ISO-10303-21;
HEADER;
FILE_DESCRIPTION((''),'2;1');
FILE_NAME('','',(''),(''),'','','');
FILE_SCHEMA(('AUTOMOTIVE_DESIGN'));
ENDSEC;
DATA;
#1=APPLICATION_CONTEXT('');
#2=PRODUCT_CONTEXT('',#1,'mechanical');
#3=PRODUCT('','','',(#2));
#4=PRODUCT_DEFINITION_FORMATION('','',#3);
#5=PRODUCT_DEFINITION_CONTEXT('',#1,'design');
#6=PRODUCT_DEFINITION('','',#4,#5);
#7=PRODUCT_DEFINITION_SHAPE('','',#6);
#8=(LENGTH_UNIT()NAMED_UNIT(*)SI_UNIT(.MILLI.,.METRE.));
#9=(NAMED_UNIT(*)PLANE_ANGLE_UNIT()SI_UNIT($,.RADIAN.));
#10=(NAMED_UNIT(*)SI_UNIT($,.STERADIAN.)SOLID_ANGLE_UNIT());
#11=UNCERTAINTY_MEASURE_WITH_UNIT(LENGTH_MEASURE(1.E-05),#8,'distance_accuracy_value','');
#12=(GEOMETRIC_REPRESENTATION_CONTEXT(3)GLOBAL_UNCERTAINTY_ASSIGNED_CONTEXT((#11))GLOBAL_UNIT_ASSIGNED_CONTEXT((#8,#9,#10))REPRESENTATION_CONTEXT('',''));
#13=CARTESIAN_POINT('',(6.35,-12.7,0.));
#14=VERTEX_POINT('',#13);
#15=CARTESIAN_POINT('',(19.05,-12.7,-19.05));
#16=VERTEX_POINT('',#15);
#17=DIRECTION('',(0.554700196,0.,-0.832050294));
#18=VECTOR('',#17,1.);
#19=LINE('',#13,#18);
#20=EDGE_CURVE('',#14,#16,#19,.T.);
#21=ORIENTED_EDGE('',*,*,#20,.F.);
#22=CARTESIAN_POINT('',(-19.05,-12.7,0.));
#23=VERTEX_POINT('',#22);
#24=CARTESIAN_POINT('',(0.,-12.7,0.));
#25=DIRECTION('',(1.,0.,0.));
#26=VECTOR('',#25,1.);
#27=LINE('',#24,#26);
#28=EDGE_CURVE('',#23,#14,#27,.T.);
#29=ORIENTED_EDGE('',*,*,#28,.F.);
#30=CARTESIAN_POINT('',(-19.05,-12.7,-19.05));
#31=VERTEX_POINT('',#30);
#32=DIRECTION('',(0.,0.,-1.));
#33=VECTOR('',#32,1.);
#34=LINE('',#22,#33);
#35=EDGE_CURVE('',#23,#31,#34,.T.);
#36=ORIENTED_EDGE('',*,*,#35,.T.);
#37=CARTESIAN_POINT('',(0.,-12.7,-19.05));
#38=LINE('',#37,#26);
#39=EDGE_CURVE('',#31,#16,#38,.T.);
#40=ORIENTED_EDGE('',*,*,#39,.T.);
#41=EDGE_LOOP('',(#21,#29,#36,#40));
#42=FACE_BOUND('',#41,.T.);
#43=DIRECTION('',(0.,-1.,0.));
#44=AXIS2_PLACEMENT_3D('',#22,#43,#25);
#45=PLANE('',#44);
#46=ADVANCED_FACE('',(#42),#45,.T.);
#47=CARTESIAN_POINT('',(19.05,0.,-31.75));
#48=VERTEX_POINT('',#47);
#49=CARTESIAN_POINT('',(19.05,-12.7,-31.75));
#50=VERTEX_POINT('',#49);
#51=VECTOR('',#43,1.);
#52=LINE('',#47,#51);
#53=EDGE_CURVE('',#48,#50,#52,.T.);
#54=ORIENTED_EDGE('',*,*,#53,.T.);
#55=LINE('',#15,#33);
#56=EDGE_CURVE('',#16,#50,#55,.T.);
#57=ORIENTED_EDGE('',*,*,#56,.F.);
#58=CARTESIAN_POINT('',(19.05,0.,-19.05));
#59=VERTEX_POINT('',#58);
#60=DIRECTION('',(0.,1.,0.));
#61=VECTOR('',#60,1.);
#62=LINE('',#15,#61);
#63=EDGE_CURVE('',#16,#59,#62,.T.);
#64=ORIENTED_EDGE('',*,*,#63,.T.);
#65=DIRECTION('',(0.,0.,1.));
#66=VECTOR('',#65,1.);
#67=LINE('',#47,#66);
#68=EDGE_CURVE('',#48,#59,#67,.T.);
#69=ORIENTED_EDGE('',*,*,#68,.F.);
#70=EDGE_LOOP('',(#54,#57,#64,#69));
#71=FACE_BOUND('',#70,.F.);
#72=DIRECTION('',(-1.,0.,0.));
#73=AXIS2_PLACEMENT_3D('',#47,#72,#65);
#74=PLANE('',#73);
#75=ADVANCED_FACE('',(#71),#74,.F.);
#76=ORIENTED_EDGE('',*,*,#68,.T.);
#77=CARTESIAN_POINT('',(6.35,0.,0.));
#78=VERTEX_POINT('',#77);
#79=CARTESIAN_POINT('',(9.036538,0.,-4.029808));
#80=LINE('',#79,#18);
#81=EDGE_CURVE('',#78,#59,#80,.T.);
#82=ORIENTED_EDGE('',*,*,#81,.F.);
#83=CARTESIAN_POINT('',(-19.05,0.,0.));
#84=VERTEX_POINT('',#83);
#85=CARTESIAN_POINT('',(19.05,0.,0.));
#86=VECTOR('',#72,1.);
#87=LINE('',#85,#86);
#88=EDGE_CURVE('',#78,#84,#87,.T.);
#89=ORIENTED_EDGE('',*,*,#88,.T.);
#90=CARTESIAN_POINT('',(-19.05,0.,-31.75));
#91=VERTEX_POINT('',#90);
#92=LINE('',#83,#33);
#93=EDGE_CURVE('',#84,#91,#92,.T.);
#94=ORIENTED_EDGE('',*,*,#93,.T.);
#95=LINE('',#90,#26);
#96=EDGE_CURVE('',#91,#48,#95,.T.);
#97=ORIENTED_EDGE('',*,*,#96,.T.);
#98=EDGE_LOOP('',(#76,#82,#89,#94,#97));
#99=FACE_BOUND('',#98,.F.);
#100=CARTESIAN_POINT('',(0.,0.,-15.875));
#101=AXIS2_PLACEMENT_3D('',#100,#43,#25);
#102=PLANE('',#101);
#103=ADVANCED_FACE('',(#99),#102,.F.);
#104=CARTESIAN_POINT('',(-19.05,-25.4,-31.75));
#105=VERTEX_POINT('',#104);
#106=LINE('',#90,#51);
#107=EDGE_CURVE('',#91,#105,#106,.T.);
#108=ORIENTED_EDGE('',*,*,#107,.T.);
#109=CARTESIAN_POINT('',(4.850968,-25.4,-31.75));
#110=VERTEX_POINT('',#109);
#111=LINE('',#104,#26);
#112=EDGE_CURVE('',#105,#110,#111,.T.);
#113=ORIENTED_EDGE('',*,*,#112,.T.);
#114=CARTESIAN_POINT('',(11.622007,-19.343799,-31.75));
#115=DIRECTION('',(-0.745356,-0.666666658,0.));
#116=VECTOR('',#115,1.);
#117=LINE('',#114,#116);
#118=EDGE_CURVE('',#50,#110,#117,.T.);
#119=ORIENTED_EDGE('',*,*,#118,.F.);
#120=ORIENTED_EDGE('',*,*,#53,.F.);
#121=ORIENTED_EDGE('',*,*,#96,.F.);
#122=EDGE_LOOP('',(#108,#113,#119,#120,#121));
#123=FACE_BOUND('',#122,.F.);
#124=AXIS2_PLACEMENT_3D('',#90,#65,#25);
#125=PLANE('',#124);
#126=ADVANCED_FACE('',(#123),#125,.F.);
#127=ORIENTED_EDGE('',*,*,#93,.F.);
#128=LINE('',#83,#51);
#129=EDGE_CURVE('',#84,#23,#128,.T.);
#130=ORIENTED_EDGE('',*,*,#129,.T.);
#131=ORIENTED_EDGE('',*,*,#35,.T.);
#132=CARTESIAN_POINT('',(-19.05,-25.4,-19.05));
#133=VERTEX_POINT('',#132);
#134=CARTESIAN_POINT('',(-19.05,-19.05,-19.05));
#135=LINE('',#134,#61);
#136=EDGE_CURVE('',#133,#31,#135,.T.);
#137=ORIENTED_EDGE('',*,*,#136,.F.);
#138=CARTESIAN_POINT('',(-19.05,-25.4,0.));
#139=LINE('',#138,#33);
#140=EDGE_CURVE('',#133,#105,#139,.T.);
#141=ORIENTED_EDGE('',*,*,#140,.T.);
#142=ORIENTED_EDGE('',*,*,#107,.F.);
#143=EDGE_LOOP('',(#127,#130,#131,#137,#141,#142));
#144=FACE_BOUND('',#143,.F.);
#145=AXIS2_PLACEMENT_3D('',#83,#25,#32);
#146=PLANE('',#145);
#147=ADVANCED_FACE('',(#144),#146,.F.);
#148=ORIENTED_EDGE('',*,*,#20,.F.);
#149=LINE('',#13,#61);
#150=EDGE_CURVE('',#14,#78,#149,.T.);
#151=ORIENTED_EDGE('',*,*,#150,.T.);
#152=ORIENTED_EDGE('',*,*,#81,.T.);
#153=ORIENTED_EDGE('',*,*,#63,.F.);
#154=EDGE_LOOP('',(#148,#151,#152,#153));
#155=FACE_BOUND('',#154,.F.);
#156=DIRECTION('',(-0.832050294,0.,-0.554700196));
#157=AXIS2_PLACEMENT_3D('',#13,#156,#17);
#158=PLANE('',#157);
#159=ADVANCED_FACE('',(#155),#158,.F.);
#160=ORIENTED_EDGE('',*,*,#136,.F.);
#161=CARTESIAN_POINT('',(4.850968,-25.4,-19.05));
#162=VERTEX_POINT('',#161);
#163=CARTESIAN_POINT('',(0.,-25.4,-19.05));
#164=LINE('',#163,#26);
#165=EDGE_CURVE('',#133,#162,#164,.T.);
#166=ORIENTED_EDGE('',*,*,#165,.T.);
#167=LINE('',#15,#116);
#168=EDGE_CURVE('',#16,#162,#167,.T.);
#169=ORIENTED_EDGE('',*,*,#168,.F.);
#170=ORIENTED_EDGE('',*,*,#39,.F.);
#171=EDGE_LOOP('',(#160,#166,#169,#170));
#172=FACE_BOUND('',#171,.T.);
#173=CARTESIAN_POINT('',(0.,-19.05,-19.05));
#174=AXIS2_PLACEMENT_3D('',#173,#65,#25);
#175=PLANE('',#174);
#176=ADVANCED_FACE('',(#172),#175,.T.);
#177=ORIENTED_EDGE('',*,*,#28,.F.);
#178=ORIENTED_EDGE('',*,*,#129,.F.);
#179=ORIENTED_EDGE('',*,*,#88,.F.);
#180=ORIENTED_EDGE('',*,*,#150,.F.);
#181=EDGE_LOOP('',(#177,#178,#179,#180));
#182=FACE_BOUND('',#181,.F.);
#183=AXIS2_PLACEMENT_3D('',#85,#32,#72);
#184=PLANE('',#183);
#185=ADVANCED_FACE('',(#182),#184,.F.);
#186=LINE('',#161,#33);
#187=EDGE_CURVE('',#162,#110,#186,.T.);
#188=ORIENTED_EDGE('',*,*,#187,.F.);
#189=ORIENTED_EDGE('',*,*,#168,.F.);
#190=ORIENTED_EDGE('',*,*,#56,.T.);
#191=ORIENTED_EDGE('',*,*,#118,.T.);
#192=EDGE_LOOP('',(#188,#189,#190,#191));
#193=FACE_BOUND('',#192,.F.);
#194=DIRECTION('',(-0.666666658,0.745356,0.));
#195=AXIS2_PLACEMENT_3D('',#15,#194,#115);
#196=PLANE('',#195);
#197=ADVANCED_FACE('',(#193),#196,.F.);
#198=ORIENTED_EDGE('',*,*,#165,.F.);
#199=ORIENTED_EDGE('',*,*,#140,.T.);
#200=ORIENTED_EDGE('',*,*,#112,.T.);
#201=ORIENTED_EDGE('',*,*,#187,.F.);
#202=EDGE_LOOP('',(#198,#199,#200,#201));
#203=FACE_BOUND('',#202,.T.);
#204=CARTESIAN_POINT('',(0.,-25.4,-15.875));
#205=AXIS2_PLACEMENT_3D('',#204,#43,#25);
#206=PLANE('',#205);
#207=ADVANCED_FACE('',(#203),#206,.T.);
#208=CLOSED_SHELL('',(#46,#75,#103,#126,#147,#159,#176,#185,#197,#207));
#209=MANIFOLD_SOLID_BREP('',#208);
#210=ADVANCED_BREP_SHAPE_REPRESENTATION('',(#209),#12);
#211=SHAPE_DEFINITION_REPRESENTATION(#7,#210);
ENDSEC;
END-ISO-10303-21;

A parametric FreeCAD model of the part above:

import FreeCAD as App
import Part
import Sketcher
from FreeCAD import Vector
Q = App.Units.Quantity

doc = App.newDocument("Part")
body = doc.addObject("PartDesign::Body", "Body")

# Sketch on XZ plane
sketch1 = doc.addObject("Sketcher::SketchObject", "Sketch")
body.addObject(sketch1)
sketch1.AttachmentSupport = (doc.XZ_Plane, [""])
sketch1.MapMode = "FlatFace"
sketch1.addGeometry(Part.LineSegment(Vector(19, 0, 0), Vector(-19, 0, 0)), False)
sketch1.addGeometry(Part.LineSegment(Vector(-19, 0, 0), Vector(-19, -32, 0)), False)
sketch1.addGeometry(Part.LineSegment(Vector(-19, -32, 0), Vector(19, -32, 0)), False)
sketch1.addGeometry(Part.LineSegment(Vector(19, -32, 0), Vector(19, 0, 0)), False)
sketch1.addConstraint(Sketcher.Constraint("Coincident", 0, 2, 1, 1))
sketch1.addConstraint(Sketcher.Constraint("Coincident", 1, 2, 2, 1))
sketch1.addConstraint(Sketcher.Constraint("Coincident", 2, 2, 3, 1))
sketch1.addConstraint(Sketcher.Constraint("Coincident", 3, 2, 0, 1))
sketch1.addConstraint(Sketcher.Constraint("Horizontal", 0))
sketch1.addConstraint(Sketcher.Constraint("Vertical", 1))
sketch1.addConstraint(Sketcher.Constraint("Horizontal", 2))
sketch1.addConstraint(Sketcher.Constraint("Vertical", 3))
sketch1.addConstraint(Sketcher.Constraint("Symmetric", 0, 2, 3, 2, -1, 1))
sketch1.addConstraint(Sketcher.Constraint("DistanceX", 0, 2, 0, 1, Q("1.5 in")))
sketch1.addConstraint(Sketcher.Constraint("DistanceY", 1, 2, 1, 1, Q("1.25 in")))
pad1 = doc.addObject("PartDesign::Pad", "Pad")
body.addObject(pad1)
pad1.Profile = sketch1
pad1.Length = Q("1 in")

# Sketch on XY plane
sketch2 = doc.addObject("Sketcher::SketchObject", "Sketch001")
body.addObject(sketch2)
sketch2.AttachmentSupport = (doc.XY_Plane, [""])
sketch2.MapMode = "FlatFace"
sketch2.addGeometry(Part.LineSegment(Vector(-19, -13, 0), Vector(-19, -25, 0)), False)
sketch2.addGeometry(Part.LineSegment(Vector(-19, -25, 0), Vector(19, -25, 0)), False)
sketch2.addGeometry(Part.LineSegment(Vector(19, -25, 0), Vector(19, -13, 0)), False)
sketch2.addGeometry(Part.LineSegment(Vector(19, -13, 0), Vector(-19, -13, 0)), False)
sketch2.addConstraint(Sketcher.Constraint("Coincident", 0, 2, 1, 1))
sketch2.addConstraint(Sketcher.Constraint("Coincident", 1, 2, 2, 1))
sketch2.addConstraint(Sketcher.Constraint("Coincident", 2, 2, 3, 1))
sketch2.addConstraint(Sketcher.Constraint("Coincident", 3, 2, 0, 1))
sketch2.addConstraint(Sketcher.Constraint("Vertical", 0))
sketch2.addConstraint(Sketcher.Constraint("Horizontal", 1))
sketch2.addConstraint(Sketcher.Constraint("Vertical", 2))
sketch2.addConstraint(Sketcher.Constraint("Horizontal", 3))
sketch2.addConstraint(Sketcher.Constraint("DistanceX", 1, 1, 1, 2, Q("1.5 in")))
sketch2.addConstraint(Sketcher.Constraint("DistanceY", 0, 2, 0, 1, Q("0.5 in")))
sketch2.addConstraint(Sketcher.Constraint("DistanceY", 0, 2, -1, 1, Q("1 in")))
sketch2.addConstraint(Sketcher.Constraint("DistanceX", 0, 2, -1, 1, Q("0.75 in")))
pocket1 = doc.addObject("PartDesign::Pocket", "Pocket")
body.addObject(pocket1)
pocket1.Profile = sketch2
pocket1.Length = Q("0.75 in")

# Sketch on XY plane
sketch3 = doc.addObject("Sketcher::SketchObject", "Sketch002")
body.addObject(sketch3)
sketch3.AttachmentSupport = (doc.XY_Plane, [""])
sketch3.MapMode = "FlatFace"
sketch3.AttachmentOffset = App.Placement(Vector(0, 0, -0.75 * 25.4), App.Rotation())
sketch3.addGeometry(Part.LineSegment(Vector(19, -25, 0), Vector(19, -13, 0)), False)
sketch3.addGeometry(Part.LineSegment(Vector(19, -13, 0), Vector(5, -25, 0)), False)
sketch3.addGeometry(Part.LineSegment(Vector(5, -25, 0), Vector(19, -25, 0)), False)
sketch3.addConstraint(Sketcher.Constraint("Coincident", 0, 2, 1, 1))
sketch3.addConstraint(Sketcher.Constraint("Coincident", 1, 2, 2, 1))
sketch3.addConstraint(Sketcher.Constraint("Coincident", 2, 2, 0, 1))
sketch3.addConstraint(Sketcher.Constraint("Vertical", 0))
sketch3.addConstraint(Sketcher.Constraint("Horizontal", 2))
sketch3.addConstraint(Sketcher.Constraint("DistanceY", 0, 1, 0, 2, Q("0.5 in")))
sketch3.addConstraint(Sketcher.Constraint("DistanceY", 1, 2, -1, 1, Q("1 in")))
sketch3.addConstraint(Sketcher.Constraint("Distance", 1, Q("0.75 in")))
sketch3.addConstraint(Sketcher.Constraint("DistanceX", -1, 1, 0, 2, Q("0.75 in")))
pocket2 = doc.addObject("PartDesign::Pocket", "Pocket001")
body.addObject(pocket2)
pocket2.Profile = sketch3
pocket2.Length = Q("1 in")

# Sketch on XZ plane
sketch4 = doc.addObject("Sketcher::SketchObject", "Sketch003")
body.addObject(sketch4)
sketch4.AttachmentSupport = (doc.XZ_Plane, [""])
sketch4.MapMode = "FlatFace"
sketch4.AttachmentOffset = App.Placement(Vector(0, 0, 0.5 * 25.4), App.Rotation())
sketch4.addGeometry(Part.LineSegment(Vector(19, -19, 0), Vector(19, 0, 0)), False)
sketch4.addGeometry(Part.LineSegment(Vector(19, 0, 0), Vector(6, 0, 0)), False)
sketch4.addGeometry(Part.LineSegment(Vector(6, 0, 0), Vector(19, -19, 0)), False)
sketch4.addConstraint(Sketcher.Constraint("Coincident", 0, 2, 1, 1))
sketch4.addConstraint(Sketcher.Constraint("Coincident", 1, 2, 2, 1))
sketch4.addConstraint(Sketcher.Constraint("Coincident", 2, 2, 0, 1))
sketch4.addConstraint(Sketcher.Constraint("Vertical", 0))
sketch4.addConstraint(Sketcher.Constraint("Horizontal", 1))
sketch4.addConstraint(Sketcher.Constraint("PointOnObject", 0, 2, -1))
sketch4.addConstraint(Sketcher.Constraint("DistanceX", 1, 2, 1, 1, Q("0.5 in")))
sketch4.addConstraint(Sketcher.Constraint("DistanceY", 0, 1, 0, 2, Q("0.75 in")))
sketch4.addConstraint(Sketcher.Constraint("DistanceX", -1, 1, 0, 2, Q("0.75 in")))
pocket3 = doc.addObject("PartDesign::Pocket", "Pocket002")
body.addObject(pocket3)
pocket3.Profile = sketch4
pocket3.Length = Q("1 in")

doc.recompute()
